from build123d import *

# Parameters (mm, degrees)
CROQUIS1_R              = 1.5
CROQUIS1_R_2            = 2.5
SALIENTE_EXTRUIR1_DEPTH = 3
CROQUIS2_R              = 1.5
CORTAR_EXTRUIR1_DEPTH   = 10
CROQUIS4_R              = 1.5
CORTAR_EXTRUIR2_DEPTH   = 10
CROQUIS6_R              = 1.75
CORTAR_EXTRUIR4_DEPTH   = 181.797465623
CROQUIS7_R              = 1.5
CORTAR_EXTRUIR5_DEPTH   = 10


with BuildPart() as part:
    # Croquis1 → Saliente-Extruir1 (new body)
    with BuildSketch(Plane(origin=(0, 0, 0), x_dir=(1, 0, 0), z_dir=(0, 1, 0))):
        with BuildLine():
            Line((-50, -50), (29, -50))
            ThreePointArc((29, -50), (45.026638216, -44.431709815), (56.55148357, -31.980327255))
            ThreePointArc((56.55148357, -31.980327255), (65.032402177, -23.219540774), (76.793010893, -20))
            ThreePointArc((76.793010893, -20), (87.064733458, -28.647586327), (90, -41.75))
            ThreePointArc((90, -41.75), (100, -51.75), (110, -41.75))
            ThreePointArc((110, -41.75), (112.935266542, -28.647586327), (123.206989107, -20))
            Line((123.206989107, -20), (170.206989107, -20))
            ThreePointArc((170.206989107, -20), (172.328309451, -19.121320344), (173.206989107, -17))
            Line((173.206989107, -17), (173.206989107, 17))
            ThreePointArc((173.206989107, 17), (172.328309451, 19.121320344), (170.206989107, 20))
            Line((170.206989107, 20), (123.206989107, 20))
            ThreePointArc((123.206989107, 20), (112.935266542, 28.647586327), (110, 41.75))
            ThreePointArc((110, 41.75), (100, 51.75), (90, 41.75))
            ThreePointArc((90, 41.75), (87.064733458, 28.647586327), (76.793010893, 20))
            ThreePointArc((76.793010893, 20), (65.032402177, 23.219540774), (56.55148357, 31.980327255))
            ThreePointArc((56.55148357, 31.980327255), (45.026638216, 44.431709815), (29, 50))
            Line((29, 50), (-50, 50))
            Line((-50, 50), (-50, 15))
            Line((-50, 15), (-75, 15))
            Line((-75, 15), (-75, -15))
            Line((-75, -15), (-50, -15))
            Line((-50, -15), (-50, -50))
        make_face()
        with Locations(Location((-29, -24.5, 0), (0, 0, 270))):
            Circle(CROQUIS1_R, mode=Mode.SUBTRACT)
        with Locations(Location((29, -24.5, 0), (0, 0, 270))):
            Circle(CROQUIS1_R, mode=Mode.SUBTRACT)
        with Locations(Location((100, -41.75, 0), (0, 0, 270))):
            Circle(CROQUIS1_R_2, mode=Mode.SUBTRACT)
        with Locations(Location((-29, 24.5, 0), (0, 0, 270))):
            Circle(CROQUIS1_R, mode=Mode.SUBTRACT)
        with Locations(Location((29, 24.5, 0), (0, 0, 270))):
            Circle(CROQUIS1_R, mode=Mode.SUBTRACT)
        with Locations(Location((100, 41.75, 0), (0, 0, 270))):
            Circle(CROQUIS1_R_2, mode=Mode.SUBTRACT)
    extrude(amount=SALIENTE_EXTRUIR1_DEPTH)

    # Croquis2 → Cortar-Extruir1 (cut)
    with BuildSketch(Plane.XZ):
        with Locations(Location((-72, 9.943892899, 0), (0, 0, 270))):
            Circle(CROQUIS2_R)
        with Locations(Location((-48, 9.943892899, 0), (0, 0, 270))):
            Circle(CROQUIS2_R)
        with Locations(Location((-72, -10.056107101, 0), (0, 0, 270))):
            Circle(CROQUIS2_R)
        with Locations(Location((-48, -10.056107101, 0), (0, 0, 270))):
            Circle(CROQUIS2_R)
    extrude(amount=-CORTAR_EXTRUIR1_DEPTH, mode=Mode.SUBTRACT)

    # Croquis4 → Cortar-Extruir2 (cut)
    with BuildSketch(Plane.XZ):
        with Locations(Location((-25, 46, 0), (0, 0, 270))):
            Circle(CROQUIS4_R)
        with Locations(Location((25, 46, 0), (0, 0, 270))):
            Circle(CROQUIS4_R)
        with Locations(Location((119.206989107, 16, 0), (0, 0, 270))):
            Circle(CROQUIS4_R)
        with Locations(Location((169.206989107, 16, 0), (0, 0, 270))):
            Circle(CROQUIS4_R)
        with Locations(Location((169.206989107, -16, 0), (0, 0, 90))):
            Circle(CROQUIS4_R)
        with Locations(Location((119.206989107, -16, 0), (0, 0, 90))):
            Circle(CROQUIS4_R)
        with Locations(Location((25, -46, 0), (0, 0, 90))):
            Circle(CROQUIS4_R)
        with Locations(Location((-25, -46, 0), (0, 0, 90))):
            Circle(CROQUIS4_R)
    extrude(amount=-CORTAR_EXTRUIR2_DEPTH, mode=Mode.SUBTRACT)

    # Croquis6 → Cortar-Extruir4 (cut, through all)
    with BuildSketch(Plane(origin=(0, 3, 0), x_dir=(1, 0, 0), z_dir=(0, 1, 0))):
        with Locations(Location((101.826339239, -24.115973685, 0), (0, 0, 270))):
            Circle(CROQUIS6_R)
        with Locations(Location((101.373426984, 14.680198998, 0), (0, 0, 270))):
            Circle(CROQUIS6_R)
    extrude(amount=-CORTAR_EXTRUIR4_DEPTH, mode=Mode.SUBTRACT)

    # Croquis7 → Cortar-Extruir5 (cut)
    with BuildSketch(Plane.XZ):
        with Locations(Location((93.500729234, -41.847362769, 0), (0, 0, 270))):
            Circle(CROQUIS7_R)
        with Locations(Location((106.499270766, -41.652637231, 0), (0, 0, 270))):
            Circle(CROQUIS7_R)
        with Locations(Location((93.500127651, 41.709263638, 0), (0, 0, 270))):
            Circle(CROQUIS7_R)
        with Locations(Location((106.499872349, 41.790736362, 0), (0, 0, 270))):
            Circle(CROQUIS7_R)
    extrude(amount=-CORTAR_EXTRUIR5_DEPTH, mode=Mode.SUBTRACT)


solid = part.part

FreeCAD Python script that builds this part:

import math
import FreeCAD as App
import Part
import Sketcher
Q = App.Units.Quantity

doc = App.newDocument("Part")
body = doc.addObject("PartDesign::Body", "Body")

sketch1 = doc.addObject("Sketcher::SketchObject", "Sketch")
body.addObject(sketch1)
sketch1.AttachmentSupport = (doc.XZ_Plane, [""])
sketch1.MapMode = "FlatFace"
sketch1.addGeometry([
    Part.LineSegment(App.Vector(-50, 50, 0), App.Vector(29, 50, 0)),
    Part.ArcOfCircle(Part.Circle(App.Vector(25.9, 15.1, 0), App.Vector(0, 0, 1), 35), math.radians(29), math.radians(85)),
    Part.ArcOfCircle(Part.Circle(App.Vector(76.8, 43.1, 0), App.Vector(0, 0, 1), 23.1), math.radians(-151), math.radians(-90)),
    Part.ArcOfCircle(Part.Circle(App.Vector(69.1, 39.5, 0), App.Vector(0, 0, 1), 21), math.radians(-69), math.radians(6)),
    Part.ArcOfCircle(Part.Circle(App.Vector(100, 41.8, 0), App.Vector(0, 0, 1), 10), math.radians(0), math.radians(180)),
    Part.ArcOfCircle(Part.Circle(App.Vector(130.9, 39.5, 0), App.Vector(0, 0, 1), 21), math.radians(174), math.radians(249)),
    Part.LineSegment(App.Vector(123.2, 20, 0), App.Vector(170.2, 20, 0)),
    Part.ArcOfCircle(Part.Circle(App.Vector(170.2, 17, 0), App.Vector(0, 0, 1), 3), math.radians(0), math.radians(90)),
    Part.LineSegment(App.Vector(173.2, 17, 0), App.Vector(173.2, -17, 0)),
    Part.ArcOfCircle(Part.Circle(App.Vector(170.2, -17, 0), App.Vector(0, 0, 1), 3), math.radians(-90), math.radians(0)),
    Part.LineSegment(App.Vector(170.2, -20, 0), App.Vector(123.2, -20, 0)),
    Part.ArcOfCircle(Part.Circle(App.Vector(130.9, -39.5, 0), App.Vector(0, 0, 1), 21), math.radians(111), math.radians(186)),
    Part.ArcOfCircle(Part.Circle(App.Vector(100, -41.8, 0), App.Vector(0, 0, 1), 10), math.radians(180), math.radians(360)),
    Part.ArcOfCircle(Part.Circle(App.Vector(69.1, -39.5, 0), App.Vector(0, 0, 1), 21), math.radians(-6), math.radians(69)),
    Part.ArcOfCircle(Part.Circle(App.Vector(76.8, -43.1, 0), App.Vector(0, 0, 1), 23.1), math.radians(90), math.radians(151)),
    Part.ArcOfCircle(Part.Circle(App.Vector(25.9, -15.1, 0), App.Vector(0, 0, 1), 35), math.radians(-85), math.radians(-29)),
    Part.LineSegment(App.Vector(29, -50, 0), App.Vector(-50, -50, 0)),
    Part.LineSegment(App.Vector(-50, -50, 0), App.Vector(-50, -15, 0)),
    Part.LineSegment(App.Vector(-50, -15, 0), App.Vector(-75, -15, 0)),
    Part.LineSegment(App.Vector(-75, -15, 0), App.Vector(-75, 15, 0)),
    Part.LineSegment(App.Vector(-75, 15, 0), App.Vector(-50, 15, 0)),
    Part.LineSegment(App.Vector(-50, 15, 0), App.Vector(-50, 50, 0)),
    Part.Circle(App.Vector(-29, 24.5, 0), App.Vector(0, 0, 1), 1.5),
    Part.Circle(App.Vector(29, 24.5, 0), App.Vector(0, 0, 1), 1.5),
    Part.Circle(App.Vector(100, 41.8, 0), App.Vector(0, 0, 1), 2.5),
    Part.Circle(App.Vector(-29, -24.5, 0), App.Vector(0, 0, 1), 1.5),
    Part.Circle(App.Vector(29, -24.5, 0), App.Vector(0, 0, 1), 1.5),
    Part.Circle(App.Vector(100, -41.8, 0), App.Vector(0, 0, 1), 2.5),
], False)
sketch1.addConstraint([
    Sketcher.Constraint("Coincident", 0, 2, 1, 2),
    Sketcher.Constraint("Tangent", 1, 1, 2, 1),
    Sketcher.Constraint("Coincident", 2, 2, 3, 1),
    Sketcher.Constraint("Coincident", 3, 2, 4, 2),
    Sketcher.Constraint("Coincident", 4, 1, 5, 1),
    Sketcher.Constraint("Coincident", 5, 2, 6, 1),
    Sketcher.Constraint("Tangent", 6, 2, 7, 2),
    Sketcher.Constraint("Tangent", 7, 1, 8, 1),
    Sketcher.Constraint("Tangent", 8, 2, 9, 2),
    Sketcher.Constraint("Tangent", 9, 1, 10, 1),
    Sketcher.Constraint("Coincident", 10, 2, 11, 1),
    Sketcher.Constraint("Coincident", 11, 2, 12, 2),
    Sketcher.Constraint("Coincident", 12, 1, 13, 1),
    Sketcher.Constraint("Coincident", 13, 2, 14, 1),
    Sketcher.Constraint("Tangent", 14, 2, 15, 2),
    Sketcher.Constraint("Coincident", 15, 1, 16, 1),
    Sketcher.Constraint("Coincident", 16, 2, 17, 1),
    Sketcher.Constraint("Coincident", 17, 2, 18, 1),
    Sketcher.Constraint("Coincident", 18, 2, 19, 1),
    Sketcher.Constraint("Coincident", 19, 2, 20, 1),
    Sketcher.Constraint("Coincident", 20, 2, 21, 1),
    Sketcher.Constraint("Coincident", 21, 2, 0, 1),
    Sketcher.Constraint("Horizontal", 0),
    Sketcher.Constraint("Horizontal", 6),
    Sketcher.Constraint("Vertical", 8),
    Sketcher.Constraint("Horizontal", 10),
    Sketcher.Constraint("Horizontal", 16),
    Sketcher.Constraint("Vertical", 17),
    Sketcher.Constraint("Horizontal", 18),
    Sketcher.Constraint("Vertical", 19),
    Sketcher.Constraint("Horizontal", 20),
    Sketcher.Constraint("Vertical", 21),
    Sketcher.Constraint("Coincident", 24, 3, 4, 3),
    Sketcher.Constraint("Coincident", 27, 3, 12, 3),
    Sketcher.Constraint("Equal", 3, 5),
    Sketcher.Constraint("Equal", 7, 9),
    Sketcher.Constraint("Equal", 5, 11),
    Sketcher.Constraint("Equal", 4, 12),
    Sketcher.Constraint("Equal", 11, 13),
    Sketcher.Constraint("Equal", 2, 14),
    Sketcher.Constraint("Equal", 1, 15),
    Sketcher.Constraint("Equal", 22, 23),
    Sketcher.Constraint("Equal", 23, 25),
    Sketcher.Constraint("Equal", 25, 26),
    Sketcher.Constraint("Equal", 24, 27),
    Sketcher.Constraint("Symmetric", 23, 3, 25, 3, -1, 1),
    Sketcher.Constraint("Symmetric", 22, 3, 26, 3, -1, 1),
    Sketcher.Constraint("Symmetric", 22, 3, 23, 3, -2),
    Sketcher.Constraint("Symmetric", 5, 3, 11, 3, -1),
    Sketcher.Constraint("Symmetric", 4, 3, 12, 3, -1),
    Sketcher.Constraint("Symmetric", 3, 3, 13, 3, -1),
    Sketcher.Constraint("Symmetric", 2, 3, 14, 3, -1),
    Sketcher.Constraint("Symmetric", 0, 2, 15, 1, -1),
    Sketcher.Constraint("Symmetric", 17, 2, 20, 2, -1),
    Sketcher.Constraint("Horizontal", 3, 3, 5, 3),
    Sketcher.Constraint("Horizontal", 24, 3, 3, 2),
    Sketcher.Constraint("Horizontal", 3, 2, 4, 1),
    Sketcher.Constraint("Horizontal", 2, 2, 5, 2),
    Sketcher.Constraint("Horizontal", 10, 2, 13, 2),
    Sketcher.Constraint("Vertical", 26, 3, 0, 2),
    Sketcher.Constraint("Vertical", 14, 3, 2, 2),
    Sketcher.Constraint("Diameter", 22, Q("3 mm")),
    Sketcher.Constraint("Diameter", 24, Q("5 mm")),
    Sketcher.Constraint("Radius", 1, Q("35 mm")),
    Sketcher.Constraint("Radius", 4, Q("10 mm")),
    Sketcher.Constraint("Radius", 7, Q("3 mm")),
    Sketcher.Constraint("DistanceX", 0, 1, 0, 2, Q("79 mm")),
    Sketcher.Constraint("DistanceX", 6, 1, 6, 2, Q("47 mm")),
    Sketcher.Constraint("DistanceX", 18, 2, 18, 1, Q("25 mm")),
    Sketcher.Constraint("DistanceY", 8, 2, 8, 1, Q("34 mm")),
    Sketcher.Constraint("DistanceY", 17, 1, 17, 2, Q("35 mm")),
    Sketcher.Constraint("DistanceY", 19, 1, 19, 2, Q("30 mm")),
    Sketcher.Constraint("DistanceX", -1, 1, 4, 3, Q("100 mm")),
    Sketcher.Constraint("DistanceX", 22, 3, -1, 1, Q("29 mm")),
    Sketcher.Constraint("DistanceY", 25, 3, 22, 3, Q("49 mm")),
    Sketcher.Constraint("DistanceY", 12, 3, 4, 3, Q("83.5 mm")),
    Sketcher.Constraint("Radius", 2, Q("23.08984 mm")),
    Sketcher.Constraint("Radius", 3, Q("21.005194 mm")),
    Sketcher.Constraint("DistanceX", -1, 1, 2, 3, Q("76.793011 mm")),
])
pad1 = doc.addObject("PartDesign::Pad", "Pad")
body.addObject(pad1)
pad1.Profile = sketch1
pad1.Length = 3
pad1.Reversed = True

sketch2 = doc.addObject("Sketcher::SketchObject", "Sketch001")
body.addObject(sketch2)
sketch2.AttachmentSupport = (doc.XZ_Plane, [""])
sketch2.MapMode = "FlatFace"
sketch2.addGeometry([
    Part.Circle(App.Vector(-72, 9.9, 0), App.Vector(0, 0, 1), 1.5),
    Part.Circle(App.Vector(-48, 9.9, 0), App.Vector(0, 0, 1), 1.5),
    Part.Circle(App.Vector(-72, -10.1, 0), App.Vector(0, 0, 1), 1.5),
    Part.Circle(App.Vector(-48, -10.1, 0), App.Vector(0, 0, 1), 1.5),
], False)
sketch2.addConstraint([
    Sketcher.Constraint("Equal", 0, 1),
    Sketcher.Constraint("Equal", 1, 2),
    Sketcher.Constraint("Equal", 2, 3),
    Sketcher.Constraint("Horizontal", 0, 3, 1, 3),
    Sketcher.Constraint("Horizontal", 2, 3, 3, 3),
    Sketcher.Constraint("Vertical", 0, 3, 2, 3),
    Sketcher.Constraint("Vertical", 1, 3, 3, 3),
    Sketcher.Constraint("Diameter", 0, Q("3 mm")),
    Sketcher.Constraint("DistanceX", 0, 3, -1, 1, Q("72 mm")),
    Sketcher.Constraint("DistanceX", 1, 3, -1, 1, Q("48 mm")),
    Sketcher.Constraint("DistanceY", 2, 3, 0, 3, Q("20 mm")),
    Sketcher.Constraint("DistanceY", -1, 1, 0, 3, Q("9.943893 mm")),
])
pocket1 = doc.addObject("PartDesign::Pocket", "Pocket")
body.addObject(pocket1)
pocket1.Profile = sketch2
pocket1.Length = 10

sketch3 = doc.addObject("Sketcher::SketchObject", "Sketch002")
body.addObject(sketch3)
sketch3.AttachmentSupport = (doc.XZ_Plane, [""])
sketch3.MapMode = "FlatFace"
sketch3.addGeometry([
    Part.Circle(App.Vector(-25, 46, 0), App.Vector(0, 0, 1), 1.5),
    Part.Circle(App.Vector(25, 46, 0), App.Vector(0, 0, 1), 1.5),
    Part.Circle(App.Vector(119.2, 16, 0), App.Vector(0, 0, 1), 1.5),
    Part.Circle(App.Vector(169.2, 16, 0), App.Vector(0, 0, 1), 1.5),
    Part.Circle(App.Vector(169.2, -16, 0), App.Vector(0, 0, 1), 1.5),
    Part.Circle(App.Vector(119.2, -16, 0), App.Vector(0, 0, 1), 1.5),
    Part.Circle(App.Vector(25, -46, 0), App.Vector(0, 0, 1), 1.5),
    Part.Circle(App.Vector(-25, -46, 0), App.Vector(0, 0, 1), 1.5),
], False)
sketch3.addConstraint([
    Sketcher.Constraint("Equal", 0, 1),
    Sketcher.Constraint("Equal", 1, 2),
    Sketcher.Constraint("Equal", 2, 3),
    Sketcher.Constraint("Equal", 3, 4),
    Sketcher.Constraint("Equal", 4, 5),
    Sketcher.Constraint("Equal", 5, 6),
    Sketcher.Constraint("Equal", 6, 7),
    Sketcher.Constraint("Symmetric", 0, 3, 6, 3, -1, 1),
    Sketcher.Constraint("Symmetric", 1, 3, 7, 3, -1, 1),
    Sketcher.Constraint("Symmetric", 0, 3, 1, 3, -2),
    Sketcher.Constraint("Symmetric", 3, 3, 4, 3, -1),
    Sketcher.Constraint("Symmetric", 2, 3, 5, 3, -1),
    Sketcher.Constraint("Horizontal", 2, 3, 3, 3),
    Sketcher.Constraint("Diameter", 0, Q("3 mm")),
    Sketcher.Constraint("DistanceX", 0, 3, -1, 1, Q("25 mm")),
    Sketcher.Constraint("DistanceY", -1, 1, 0, 3, Q("46 mm")),
    Sketcher.Constraint("DistanceY", -1, 1, 2, 3, Q("16 mm")),
    Sketcher.Constraint("DistanceX", 2, 3, 3, 3, Q("50 mm")),
    Sketcher.Constraint("DistanceX", -1, 1, 2, 3, Q("119.206989 mm")),
])
pocket2 = doc.addObject("PartDesign::Pocket", "Pocket001")
body.addObject(pocket2)
pocket2.Profile = sketch3
pocket2.Length = 10

sketch4 = doc.addObject("Sketcher::SketchObject", "Sketch003")
body.addObject(sketch4)
sketch4.AttachmentSupport = (doc.XZ_Plane, [""])
sketch4.MapMode = "FlatFace"
sketch4.AttachmentOffset = App.Placement(App.Vector(0, 0, -3), App.Rotation())
sketch4.addGeometry([
    Part.Circle(App.Vector(101.8, 24.1, 0), App.Vector(0, 0, 1), 1.8),
    Part.Circle(App.Vector(101.4, -14.7, 0), App.Vector(0, 0, 1), 1.8),
], False)
sketch4.addConstraint([
    Sketcher.Constraint("Equal", 0, 1),
    Sketcher.Constraint("Diameter", 0, Q("3.5 mm")),
    Sketcher.Constraint("DistanceY", 1, 3, -1, 1, Q("14.680199 mm")),
    Sketcher.Constraint("DistanceX", -1, 1, 0, 3, Q("101.826339 mm")),
    Sketcher.Constraint("DistanceY", -1, 1, 0, 3, Q("24.115974 mm")),
    Sketcher.Constraint("DistanceX", -1, 1, 1, 3, Q("101.373427 mm")),
])
pocket3 = doc.addObject("PartDesign::Pocket", "Pocket002")
body.addObject(pocket3)
pocket3.Profile = sketch4
pocket3.Type = "ThroughAll"
pocket3.Reversed = True

sketch5 = doc.addObject("Sketcher::SketchObject", "Sketch004")
body.addObject(sketch5)
sketch5.AttachmentSupport = (doc.XZ_Plane, [""])
sketch5.MapMode = "FlatFace"
sketch5.addGeometry([
    Part.Circle(App.Vector(93.5, -41.8, 0), App.Vector(0, 0, 1), 1.5),
    Part.Circle(App.Vector(106.5, -41.7, 0), App.Vector(0, 0, 1), 1.5),
    Part.Circle(App.Vector(93.5, 41.7, 0), App.Vector(0, 0, 1), 1.5),
    Part.Circle(App.Vector(106.5, 41.8, 0), App.Vector(0, 0, 1), 1.5),
], False)
sketch5.addConstraint([
    Sketcher.Constraint("Equal", 0, 1),
    Sketcher.Constraint("Equal", 1, 2),
    Sketcher.Constraint("Equal", 2, 3),
    Sketcher.Constraint("Diameter", 0, Q("3 mm")),
    Sketcher.Constraint("DistanceX", 2, 3, 0, 3, Q("0.000602 mm")),
    Sketcher.Constraint("DistanceY", 1, 3, 2, 3, Q("83.361901 mm")),
    Sketcher.Constraint("DistanceX", 1, 3, 3, 3, Q("0.000602 mm")),
    Sketcher.Constraint("DistanceY", 0, 3, 3, 3, Q("83.638099 mm")),
    Sketcher.Constraint("DistanceX", -1, 1, 0, 3, Q("93.500729 mm")),
    Sketcher.Constraint("DistanceX", -1, 1, 1, 3, Q("106.499271 mm")),
    Sketcher.Constraint("DistanceY", 0, 3, -1, 1, Q("41.847363 mm")),
    Sketcher.Constraint("DistanceY", 1, 3, -1, 1, Q("41.652637 mm")),
])
pocket4 = doc.addObject("PartDesign::Pocket", "Pocket003")
body.addObject(pocket4)
pocket4.Profile = sketch5
pocket4.Length = 10

doc.recompute()
